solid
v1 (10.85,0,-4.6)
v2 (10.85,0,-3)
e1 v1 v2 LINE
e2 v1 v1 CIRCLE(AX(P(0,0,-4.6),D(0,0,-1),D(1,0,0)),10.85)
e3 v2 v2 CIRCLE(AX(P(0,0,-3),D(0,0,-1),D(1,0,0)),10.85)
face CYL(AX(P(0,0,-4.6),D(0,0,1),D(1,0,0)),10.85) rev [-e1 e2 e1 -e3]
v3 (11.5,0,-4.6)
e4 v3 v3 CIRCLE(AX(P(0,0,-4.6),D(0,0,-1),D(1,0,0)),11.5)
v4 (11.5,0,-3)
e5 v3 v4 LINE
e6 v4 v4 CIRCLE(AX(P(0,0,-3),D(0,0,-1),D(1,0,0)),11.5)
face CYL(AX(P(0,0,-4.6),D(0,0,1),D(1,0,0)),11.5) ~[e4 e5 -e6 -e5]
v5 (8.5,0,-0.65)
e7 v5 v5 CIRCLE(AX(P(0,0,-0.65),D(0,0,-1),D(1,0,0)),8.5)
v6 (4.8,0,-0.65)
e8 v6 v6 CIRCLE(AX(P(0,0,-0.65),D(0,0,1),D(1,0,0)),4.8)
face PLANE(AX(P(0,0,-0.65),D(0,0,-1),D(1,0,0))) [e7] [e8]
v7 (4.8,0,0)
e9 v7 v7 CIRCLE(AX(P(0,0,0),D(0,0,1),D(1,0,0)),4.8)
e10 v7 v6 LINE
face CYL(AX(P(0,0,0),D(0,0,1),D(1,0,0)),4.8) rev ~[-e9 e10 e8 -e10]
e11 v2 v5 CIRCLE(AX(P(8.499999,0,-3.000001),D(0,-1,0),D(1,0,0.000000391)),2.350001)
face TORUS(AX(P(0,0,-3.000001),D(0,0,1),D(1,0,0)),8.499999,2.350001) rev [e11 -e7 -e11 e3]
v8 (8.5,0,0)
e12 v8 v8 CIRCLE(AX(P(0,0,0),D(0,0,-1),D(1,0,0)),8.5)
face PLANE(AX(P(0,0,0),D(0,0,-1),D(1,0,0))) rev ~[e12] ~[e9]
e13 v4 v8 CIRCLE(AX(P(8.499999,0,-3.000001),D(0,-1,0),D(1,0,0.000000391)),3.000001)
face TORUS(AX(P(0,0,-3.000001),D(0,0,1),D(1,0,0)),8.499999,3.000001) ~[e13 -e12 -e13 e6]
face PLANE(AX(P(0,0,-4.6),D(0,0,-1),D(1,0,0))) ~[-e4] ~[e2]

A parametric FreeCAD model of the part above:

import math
import FreeCAD as App
import Part
import Sketcher

V = App.Vector
Q = App.Units.Quantity


def faces_at(feature, points):
    """Names of the faces that lie closest to the given points."""
    faces = feature.Shape.Faces
    near = lambda p: min(range(len(faces)), key=lambda i: faces[i].distToShape(Part.Vertex(*p))[0])
    return sorted({f"Face{near(p) + 1}" for p in points})

doc = App.newDocument("Part")
body = doc.addObject("PartDesign::Body", "Body")

# Sketch on XZ plane
sketch1 = body.newObject("Sketcher::SketchObject", "Sketch")
sketch1.AttachmentSupport = (doc.getObject("XZ_Plane"), [""])
sketch1.MapMode = "FlatFace"
sketch1.addGeometry(Part.LineSegment(V(8.5, 0, 0), V(0, 0, 0)), False)
sketch1.addGeometry(Part.LineSegment(V(0, 0, 0), V(0, -4.6, 0)), False)
sketch1.addGeometry(Part.LineSegment(V(0, -4.6, 0), V(11.5, -4.6, 0)), False)
sketch1.addGeometry(Part.LineSegment(V(11.5, -4.6, 0), V(11.5, -3, 0)), False)
sketch1.addGeometry(Part.ArcOfCircle(Part.Circle(V(8.5, -3, 0), V(0, 0, 1), 3), math.radians(0), math.radians(90)), False)
sketch1.addConstraint(Sketcher.Constraint("Coincident", 0, 2, 1, 1))
sketch1.addConstraint(Sketcher.Constraint("Coincident", 1, 2, 2, 1))
sketch1.addConstraint(Sketcher.Constraint("Coincident", 2, 2, 3, 1))
sketch1.addConstraint(Sketcher.Constraint("Tangent", 3, 2, 4, 1))
sketch1.addConstraint(Sketcher.Constraint("Tangent", 4, 2, 0, 1))
sketch1.addConstraint(Sketcher.Constraint("Horizontal", 0))
sketch1.addConstraint(Sketcher.Constraint("Vertical", 1))
sketch1.addConstraint(Sketcher.Constraint("Horizontal", 2))
sketch1.addConstraint(Sketcher.Constraint("Vertical", 3))
sketch1.addConstraint(Sketcher.Constraint("Coincident", 0, 2, -1, 1))
sketch1.addConstraint(Sketcher.Constraint("Radius", 4, Q("3.000001 mm")))
sketch1.addConstraint(Sketcher.Constraint("DistanceX", 0, 2, 0, 1, Q("8.5 mm")))
sketch1.addConstraint(Sketcher.Constraint("DistanceY", 1, 2, 1, 1, Q("4.6 mm")))
revolution = body.newObject("PartDesign::Revolution", "Revolution")
revolution.Profile = sketch1
revolution.ReferenceAxis = (sketch1, ["V_Axis"])
revolution.Angle = 360
doc.recompute()

thickness = body.newObject("PartDesign::Thickness", "Thickness")
thickness.Base = (revolution, faces_at(revolution, [(0, 0, -4.6)]))
thickness.Value = 0.65
thickness.Reversed = True
thickness.Join = "Arc"

# Sketch on XY plane
sketch2 = body.newObject("Sketcher::SketchObject", "Sketch001")
sketch2.AttachmentSupport = (doc.getObject("XY_Plane"), [""])
sketch2.MapMode = "FlatFace"
sketch2.addGeometry(Part.Circle(V(0, 0, 0), V(0, 0, 1), 4.8), False)
sketch2.addConstraint(Sketcher.Constraint("Coincident", 0, 3, -1, 1))
sketch2.addConstraint(Sketcher.Constraint("Diameter", 0, Q("9.6 mm")))
pocket1 = body.newObject("PartDesign::Pocket", "Pocket")
pocket1.Profile = sketch2
pocket1.Type = "ThroughAll"

doc.recompute()
